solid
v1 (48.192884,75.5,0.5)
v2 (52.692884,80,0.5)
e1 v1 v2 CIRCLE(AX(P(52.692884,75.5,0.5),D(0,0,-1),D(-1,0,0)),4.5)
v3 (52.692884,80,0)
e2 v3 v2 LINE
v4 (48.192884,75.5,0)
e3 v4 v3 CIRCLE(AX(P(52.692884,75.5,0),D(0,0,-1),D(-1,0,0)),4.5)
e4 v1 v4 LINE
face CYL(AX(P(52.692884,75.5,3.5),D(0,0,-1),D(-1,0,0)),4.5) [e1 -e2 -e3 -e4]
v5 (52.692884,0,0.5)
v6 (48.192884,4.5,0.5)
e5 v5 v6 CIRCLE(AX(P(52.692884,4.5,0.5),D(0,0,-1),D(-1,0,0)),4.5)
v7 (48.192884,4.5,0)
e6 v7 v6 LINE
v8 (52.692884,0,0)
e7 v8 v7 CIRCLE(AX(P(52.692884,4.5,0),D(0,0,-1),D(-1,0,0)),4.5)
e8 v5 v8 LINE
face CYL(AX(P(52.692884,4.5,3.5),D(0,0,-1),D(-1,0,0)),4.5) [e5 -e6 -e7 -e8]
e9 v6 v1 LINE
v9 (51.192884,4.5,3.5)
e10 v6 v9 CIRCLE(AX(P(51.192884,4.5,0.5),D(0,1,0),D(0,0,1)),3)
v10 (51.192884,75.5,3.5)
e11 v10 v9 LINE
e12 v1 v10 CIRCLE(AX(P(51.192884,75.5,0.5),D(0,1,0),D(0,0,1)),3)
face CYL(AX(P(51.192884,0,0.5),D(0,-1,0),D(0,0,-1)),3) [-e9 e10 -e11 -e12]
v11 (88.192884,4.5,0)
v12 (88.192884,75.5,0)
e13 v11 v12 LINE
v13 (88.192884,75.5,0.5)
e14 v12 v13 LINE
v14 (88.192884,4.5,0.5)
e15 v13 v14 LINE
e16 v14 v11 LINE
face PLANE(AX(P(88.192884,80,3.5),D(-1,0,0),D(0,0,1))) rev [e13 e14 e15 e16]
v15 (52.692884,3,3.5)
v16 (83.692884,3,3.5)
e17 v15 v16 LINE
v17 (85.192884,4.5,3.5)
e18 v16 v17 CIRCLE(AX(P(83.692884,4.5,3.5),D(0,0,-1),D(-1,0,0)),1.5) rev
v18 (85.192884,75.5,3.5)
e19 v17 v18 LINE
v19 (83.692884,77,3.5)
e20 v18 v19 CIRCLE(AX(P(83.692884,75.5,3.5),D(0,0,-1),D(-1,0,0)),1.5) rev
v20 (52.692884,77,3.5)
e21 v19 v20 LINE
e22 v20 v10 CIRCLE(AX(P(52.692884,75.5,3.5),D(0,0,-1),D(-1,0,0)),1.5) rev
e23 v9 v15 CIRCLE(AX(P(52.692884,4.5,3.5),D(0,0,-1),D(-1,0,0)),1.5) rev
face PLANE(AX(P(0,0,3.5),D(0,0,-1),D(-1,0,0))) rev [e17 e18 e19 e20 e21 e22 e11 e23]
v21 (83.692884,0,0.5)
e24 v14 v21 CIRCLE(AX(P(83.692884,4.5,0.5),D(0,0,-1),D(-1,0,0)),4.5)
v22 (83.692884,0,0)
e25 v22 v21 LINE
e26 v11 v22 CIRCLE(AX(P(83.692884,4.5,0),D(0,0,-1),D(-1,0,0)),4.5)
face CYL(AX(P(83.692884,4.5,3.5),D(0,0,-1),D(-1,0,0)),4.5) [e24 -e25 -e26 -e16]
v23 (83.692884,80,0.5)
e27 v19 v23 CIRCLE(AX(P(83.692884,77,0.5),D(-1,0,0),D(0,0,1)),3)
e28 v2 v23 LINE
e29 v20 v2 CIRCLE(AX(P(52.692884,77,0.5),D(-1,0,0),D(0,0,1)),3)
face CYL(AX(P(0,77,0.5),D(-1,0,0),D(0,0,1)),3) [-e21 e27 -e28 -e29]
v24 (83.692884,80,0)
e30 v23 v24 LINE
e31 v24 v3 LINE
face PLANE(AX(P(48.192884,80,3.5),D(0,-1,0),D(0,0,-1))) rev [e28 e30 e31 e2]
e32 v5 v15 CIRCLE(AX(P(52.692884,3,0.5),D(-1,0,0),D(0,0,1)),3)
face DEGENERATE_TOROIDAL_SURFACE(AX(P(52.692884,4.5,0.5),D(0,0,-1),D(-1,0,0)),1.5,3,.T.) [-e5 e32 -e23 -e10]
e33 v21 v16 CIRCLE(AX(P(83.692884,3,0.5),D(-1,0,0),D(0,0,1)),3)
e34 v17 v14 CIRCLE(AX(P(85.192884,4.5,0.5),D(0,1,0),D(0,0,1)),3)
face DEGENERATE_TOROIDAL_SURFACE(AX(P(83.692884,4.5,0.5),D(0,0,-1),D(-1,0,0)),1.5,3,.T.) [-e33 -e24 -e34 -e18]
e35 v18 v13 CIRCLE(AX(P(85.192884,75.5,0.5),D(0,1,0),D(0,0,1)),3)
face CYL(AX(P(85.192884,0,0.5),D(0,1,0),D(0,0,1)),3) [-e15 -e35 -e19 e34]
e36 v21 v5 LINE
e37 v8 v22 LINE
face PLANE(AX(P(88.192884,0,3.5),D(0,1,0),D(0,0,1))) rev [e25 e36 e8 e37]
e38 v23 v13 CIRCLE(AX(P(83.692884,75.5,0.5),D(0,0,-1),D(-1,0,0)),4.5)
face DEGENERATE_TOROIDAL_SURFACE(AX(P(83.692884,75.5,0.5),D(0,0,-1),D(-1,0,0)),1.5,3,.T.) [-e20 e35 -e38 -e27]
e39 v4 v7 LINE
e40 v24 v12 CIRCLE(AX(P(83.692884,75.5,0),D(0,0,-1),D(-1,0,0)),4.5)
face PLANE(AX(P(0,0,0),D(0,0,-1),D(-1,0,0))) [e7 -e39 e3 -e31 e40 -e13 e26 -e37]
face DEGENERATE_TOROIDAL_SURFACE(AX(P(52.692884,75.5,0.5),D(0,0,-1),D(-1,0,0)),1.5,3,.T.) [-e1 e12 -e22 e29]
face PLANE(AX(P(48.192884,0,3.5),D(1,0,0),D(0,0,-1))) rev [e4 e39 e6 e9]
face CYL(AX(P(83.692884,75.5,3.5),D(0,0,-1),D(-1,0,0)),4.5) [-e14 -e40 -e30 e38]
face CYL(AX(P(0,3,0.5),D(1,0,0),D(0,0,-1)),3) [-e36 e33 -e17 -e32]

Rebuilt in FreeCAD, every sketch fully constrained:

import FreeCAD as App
import Part
import Sketcher


def edges_at(feature, points):
    """Names of the edges that pass closest to the given points."""
    edges = feature.Shape.Edges
    near = lambda p: min(range(len(edges)), key=lambda i: edges[i].distToShape(Part.Vertex(*p))[0])
    return sorted({f"Edge{near(p) + 1}" for p in points})

doc = App.newDocument("Part")
body = doc.addObject("PartDesign::Body", "Body")

# Sketch on XY plane
sketch1 = body.newObject("Sketcher::SketchObject", "Sketch")
sketch1.AttachmentSupport = (doc.getObject("XY_Plane"), [""])
sketch1.MapMode = "FlatFace"
sketch1.addGeometry([
    Part.LineSegment(App.Vector(48, 80, 0), App.Vector(48, 0, 0)),
    Part.LineSegment(App.Vector(48, 0, 0), App.Vector(88, 0, 0)),
    Part.LineSegment(App.Vector(88, 0, 0), App.Vector(88, 80, 0)),
    Part.LineSegment(App.Vector(88, 80, 0), App.Vector(48, 80, 0)),
], False)
sketch1.addConstraint([
    Sketcher.Constraint("Coincident", 0, 2, 1, 1),
    Sketcher.Constraint("Coincident", 1, 2, 2, 1),
    Sketcher.Constraint("Coincident", 2, 2, 3, 1),
    Sketcher.Constraint("Coincident", 3, 2, 0, 1),
    Sketcher.Constraint("Vertical", 0),
    Sketcher.Constraint("Horizontal", 1),
    Sketcher.Constraint("Vertical", 2),
    Sketcher.Constraint("Horizontal", 3),
    Sketcher.Constraint("PointOnObject", 0, 2, -1),
    Sketcher.Constraint("DistanceX", 1, 1, 1, 2, 40.0),
    Sketcher.Constraint("DistanceY", 0, 2, 0, 1, 80.0),
    Sketcher.Constraint("DistanceX", -1, 1, 0, 2, 48.192884),
])
pad1 = body.newObject("PartDesign::Pad", "Pad")
pad1.Profile = sketch1
pad1.Length = 3.5
doc.recompute()

fillet = body.newObject("PartDesign::Fillet", "Fillet")
fillet.Base = (pad1, edges_at(pad1, [
    (48.193, 0, 1.75),
    (48.193, 80, 1.75),
    (88.193, 80, 1.75),
    (88.193, 0, 1.75),
]))
fillet.Radius = 4.5
doc.recompute()

fillet2 = body.newObject("PartDesign::Fillet", "Fillet001")
fillet2.Base = (fillet, edges_at(fillet, [
    (68.193, 0, 3.5),
    (48.193, 40, 3.5),
    (88.193, 40, 3.5),
    (68.193, 80, 3.5),
    (86.875, 78.682, 3.5),
    (49.511, 78.682, 3.5),
    (86.875, 1.318, 3.5),
    (49.511, 1.318, 3.5),
]))
fillet2.Radius = 3

doc.recompute()
